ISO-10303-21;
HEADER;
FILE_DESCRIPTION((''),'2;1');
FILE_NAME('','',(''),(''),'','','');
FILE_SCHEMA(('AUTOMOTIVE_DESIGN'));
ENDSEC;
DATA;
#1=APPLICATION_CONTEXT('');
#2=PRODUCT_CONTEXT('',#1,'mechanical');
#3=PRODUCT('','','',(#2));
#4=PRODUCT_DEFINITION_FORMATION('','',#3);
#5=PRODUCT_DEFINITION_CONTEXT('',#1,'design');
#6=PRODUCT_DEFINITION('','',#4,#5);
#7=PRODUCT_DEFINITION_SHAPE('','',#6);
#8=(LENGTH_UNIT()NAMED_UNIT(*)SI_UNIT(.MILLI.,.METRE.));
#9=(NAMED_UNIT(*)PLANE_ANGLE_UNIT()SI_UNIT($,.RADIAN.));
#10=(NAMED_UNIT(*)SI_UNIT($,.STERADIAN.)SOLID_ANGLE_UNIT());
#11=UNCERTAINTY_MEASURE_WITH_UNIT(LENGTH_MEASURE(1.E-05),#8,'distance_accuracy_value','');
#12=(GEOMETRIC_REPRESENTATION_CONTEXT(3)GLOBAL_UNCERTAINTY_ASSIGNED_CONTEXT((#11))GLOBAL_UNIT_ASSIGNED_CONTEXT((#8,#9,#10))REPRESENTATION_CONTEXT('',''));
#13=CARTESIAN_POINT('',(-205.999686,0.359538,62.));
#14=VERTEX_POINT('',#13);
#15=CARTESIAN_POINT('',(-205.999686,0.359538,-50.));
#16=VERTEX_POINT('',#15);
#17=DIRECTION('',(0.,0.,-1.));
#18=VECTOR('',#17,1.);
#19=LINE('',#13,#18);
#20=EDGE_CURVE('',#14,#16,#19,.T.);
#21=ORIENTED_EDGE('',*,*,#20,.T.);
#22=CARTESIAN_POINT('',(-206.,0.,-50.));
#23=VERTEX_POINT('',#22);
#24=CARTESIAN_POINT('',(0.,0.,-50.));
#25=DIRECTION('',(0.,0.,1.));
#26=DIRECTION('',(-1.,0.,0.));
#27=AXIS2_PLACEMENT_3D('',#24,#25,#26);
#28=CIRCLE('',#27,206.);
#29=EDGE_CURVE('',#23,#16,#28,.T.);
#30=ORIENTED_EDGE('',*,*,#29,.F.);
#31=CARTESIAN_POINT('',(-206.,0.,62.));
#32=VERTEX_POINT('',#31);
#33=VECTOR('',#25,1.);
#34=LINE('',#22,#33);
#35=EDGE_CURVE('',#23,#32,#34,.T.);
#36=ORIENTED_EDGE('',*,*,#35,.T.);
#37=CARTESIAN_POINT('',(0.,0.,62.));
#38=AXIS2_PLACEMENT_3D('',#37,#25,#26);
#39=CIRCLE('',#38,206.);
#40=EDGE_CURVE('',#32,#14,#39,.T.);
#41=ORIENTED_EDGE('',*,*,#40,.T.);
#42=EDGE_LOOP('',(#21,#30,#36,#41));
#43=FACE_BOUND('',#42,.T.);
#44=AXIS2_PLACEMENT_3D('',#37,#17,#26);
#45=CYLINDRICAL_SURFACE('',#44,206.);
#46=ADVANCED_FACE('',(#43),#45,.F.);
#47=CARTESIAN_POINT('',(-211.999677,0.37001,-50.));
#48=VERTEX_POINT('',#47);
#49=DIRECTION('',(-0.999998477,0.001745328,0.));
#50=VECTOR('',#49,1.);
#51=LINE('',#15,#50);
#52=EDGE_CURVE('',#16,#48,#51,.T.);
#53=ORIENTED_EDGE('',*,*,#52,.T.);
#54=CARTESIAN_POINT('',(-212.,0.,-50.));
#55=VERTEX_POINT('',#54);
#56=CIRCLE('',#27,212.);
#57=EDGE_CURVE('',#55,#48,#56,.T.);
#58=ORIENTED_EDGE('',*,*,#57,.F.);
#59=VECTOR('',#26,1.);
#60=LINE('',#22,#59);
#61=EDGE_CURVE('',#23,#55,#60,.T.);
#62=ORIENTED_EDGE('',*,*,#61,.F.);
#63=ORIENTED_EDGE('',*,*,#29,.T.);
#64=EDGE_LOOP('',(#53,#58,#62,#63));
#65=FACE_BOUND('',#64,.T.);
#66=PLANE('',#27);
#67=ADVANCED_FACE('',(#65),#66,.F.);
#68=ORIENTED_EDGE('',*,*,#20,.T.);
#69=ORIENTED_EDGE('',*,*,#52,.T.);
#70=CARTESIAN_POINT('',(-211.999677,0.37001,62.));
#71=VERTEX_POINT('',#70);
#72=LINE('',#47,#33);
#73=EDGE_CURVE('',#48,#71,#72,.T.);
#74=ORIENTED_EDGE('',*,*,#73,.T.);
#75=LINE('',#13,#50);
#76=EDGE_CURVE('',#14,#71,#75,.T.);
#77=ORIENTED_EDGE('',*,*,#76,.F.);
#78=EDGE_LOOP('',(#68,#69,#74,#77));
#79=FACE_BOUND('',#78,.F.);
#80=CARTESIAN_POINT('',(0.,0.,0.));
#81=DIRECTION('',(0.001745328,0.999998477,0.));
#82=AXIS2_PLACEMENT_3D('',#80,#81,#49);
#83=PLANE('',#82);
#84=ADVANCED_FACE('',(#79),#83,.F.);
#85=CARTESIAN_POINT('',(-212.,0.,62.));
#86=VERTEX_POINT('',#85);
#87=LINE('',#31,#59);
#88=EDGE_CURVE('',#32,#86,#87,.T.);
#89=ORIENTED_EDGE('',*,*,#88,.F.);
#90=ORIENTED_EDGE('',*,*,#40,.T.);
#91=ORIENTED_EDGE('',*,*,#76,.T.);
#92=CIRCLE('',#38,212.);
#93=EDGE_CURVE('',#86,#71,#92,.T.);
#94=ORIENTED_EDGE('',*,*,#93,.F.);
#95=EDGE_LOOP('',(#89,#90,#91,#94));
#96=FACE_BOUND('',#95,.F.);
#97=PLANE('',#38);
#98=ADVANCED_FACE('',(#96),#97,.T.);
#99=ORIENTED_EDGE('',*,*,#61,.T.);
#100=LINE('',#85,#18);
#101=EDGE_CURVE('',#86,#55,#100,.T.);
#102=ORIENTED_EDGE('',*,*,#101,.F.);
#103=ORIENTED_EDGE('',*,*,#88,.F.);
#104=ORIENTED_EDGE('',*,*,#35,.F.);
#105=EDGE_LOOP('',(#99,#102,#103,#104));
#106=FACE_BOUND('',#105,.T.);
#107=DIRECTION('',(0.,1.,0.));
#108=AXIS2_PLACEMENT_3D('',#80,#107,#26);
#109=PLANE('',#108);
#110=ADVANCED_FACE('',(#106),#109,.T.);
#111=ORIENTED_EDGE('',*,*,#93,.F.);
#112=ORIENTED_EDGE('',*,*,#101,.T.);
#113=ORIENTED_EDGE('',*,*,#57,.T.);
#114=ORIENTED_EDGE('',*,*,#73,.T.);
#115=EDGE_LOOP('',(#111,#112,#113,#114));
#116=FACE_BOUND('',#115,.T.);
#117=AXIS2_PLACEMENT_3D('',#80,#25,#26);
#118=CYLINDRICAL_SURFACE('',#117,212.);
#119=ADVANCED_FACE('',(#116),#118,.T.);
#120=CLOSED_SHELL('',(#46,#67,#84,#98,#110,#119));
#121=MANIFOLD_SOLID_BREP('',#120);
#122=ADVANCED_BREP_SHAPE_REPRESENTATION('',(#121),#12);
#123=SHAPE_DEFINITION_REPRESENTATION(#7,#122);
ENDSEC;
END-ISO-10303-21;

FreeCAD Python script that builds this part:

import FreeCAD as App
import Part
import Sketcher
from FreeCAD import Vector
Q = App.Units.Quantity

doc = App.newDocument("Part")
params = doc.addObject("Spreadsheet::Sheet", "Params")
for row, (alias, value) in enumerate([
    ("sketch1_width", "6 mm"),
    ("revolution_angle", "359.9 deg"),
], start=1):
    params.set(f"A{row}", alias)
    params.set(f"B{row}", "=" + value)
    params.setAlias(f"B{row}", alias)

body = doc.addObject("PartDesign::Body", "Body")

sketch1 = body.newObject("Sketcher::SketchObject", "Sketch")
sketch1.AttachmentSupport = (doc.getObject("XZ_Plane"), [""])
sketch1.MapMode = "FlatFace"
sketch1.addGeometry(Part.LineSegment(Vector(-212, 62, 0), Vector(-206, 62, 0)), False)
sketch1.addGeometry(Part.LineSegment(Vector(-206, 62, 0), Vector(-206, -50, 0)), False)
sketch1.addGeometry(Part.LineSegment(Vector(-206, -50, 0), Vector(-212, -50, 0)), False)
sketch1.addGeometry(Part.LineSegment(Vector(-212, -50, 0), Vector(-212, 62, 0)), False)
sketch1.addConstraint(Sketcher.Constraint("Coincident", 0, 2, 1, 1))
sketch1.addConstraint(Sketcher.Constraint("Coincident", 1, 2, 2, 1))
sketch1.addConstraint(Sketcher.Constraint("Coincident", 2, 2, 3, 1))
sketch1.addConstraint(Sketcher.Constraint("Coincident", 3, 2, 0, 1))
sketch1.addConstraint(Sketcher.Constraint("Horizontal", 0))
sketch1.addConstraint(Sketcher.Constraint("Vertical", 1))
sketch1.addConstraint(Sketcher.Constraint("Horizontal", 2))
sketch1.addConstraint(Sketcher.Constraint("Vertical", 3))
sketch1.addConstraint(Sketcher.Constraint("DistanceX", 0, 1, 0, 2, Q("6 mm")))
sketch1.addConstraint(Sketcher.Constraint("DistanceY", -1, 1, 0, 2, Q("62 mm")))
sketch1.addConstraint(Sketcher.Constraint("DistanceY", 1, 2, -1, 1, Q("50 mm")))
sketch1.addConstraint(Sketcher.Constraint("DistanceX", 0, 2, -1, 1, Q("206 mm")))
sketch1.setExpression("Constraints[8]", "Params.sketch1_width")
revolution = body.newObject("PartDesign::Revolution", "Revolution")
revolution.Profile = sketch1
revolution.ReferenceAxis = (sketch1, ["V_Axis"])
revolution.setExpression("Angle", "Params.revolution_angle")

doc.recompute()
